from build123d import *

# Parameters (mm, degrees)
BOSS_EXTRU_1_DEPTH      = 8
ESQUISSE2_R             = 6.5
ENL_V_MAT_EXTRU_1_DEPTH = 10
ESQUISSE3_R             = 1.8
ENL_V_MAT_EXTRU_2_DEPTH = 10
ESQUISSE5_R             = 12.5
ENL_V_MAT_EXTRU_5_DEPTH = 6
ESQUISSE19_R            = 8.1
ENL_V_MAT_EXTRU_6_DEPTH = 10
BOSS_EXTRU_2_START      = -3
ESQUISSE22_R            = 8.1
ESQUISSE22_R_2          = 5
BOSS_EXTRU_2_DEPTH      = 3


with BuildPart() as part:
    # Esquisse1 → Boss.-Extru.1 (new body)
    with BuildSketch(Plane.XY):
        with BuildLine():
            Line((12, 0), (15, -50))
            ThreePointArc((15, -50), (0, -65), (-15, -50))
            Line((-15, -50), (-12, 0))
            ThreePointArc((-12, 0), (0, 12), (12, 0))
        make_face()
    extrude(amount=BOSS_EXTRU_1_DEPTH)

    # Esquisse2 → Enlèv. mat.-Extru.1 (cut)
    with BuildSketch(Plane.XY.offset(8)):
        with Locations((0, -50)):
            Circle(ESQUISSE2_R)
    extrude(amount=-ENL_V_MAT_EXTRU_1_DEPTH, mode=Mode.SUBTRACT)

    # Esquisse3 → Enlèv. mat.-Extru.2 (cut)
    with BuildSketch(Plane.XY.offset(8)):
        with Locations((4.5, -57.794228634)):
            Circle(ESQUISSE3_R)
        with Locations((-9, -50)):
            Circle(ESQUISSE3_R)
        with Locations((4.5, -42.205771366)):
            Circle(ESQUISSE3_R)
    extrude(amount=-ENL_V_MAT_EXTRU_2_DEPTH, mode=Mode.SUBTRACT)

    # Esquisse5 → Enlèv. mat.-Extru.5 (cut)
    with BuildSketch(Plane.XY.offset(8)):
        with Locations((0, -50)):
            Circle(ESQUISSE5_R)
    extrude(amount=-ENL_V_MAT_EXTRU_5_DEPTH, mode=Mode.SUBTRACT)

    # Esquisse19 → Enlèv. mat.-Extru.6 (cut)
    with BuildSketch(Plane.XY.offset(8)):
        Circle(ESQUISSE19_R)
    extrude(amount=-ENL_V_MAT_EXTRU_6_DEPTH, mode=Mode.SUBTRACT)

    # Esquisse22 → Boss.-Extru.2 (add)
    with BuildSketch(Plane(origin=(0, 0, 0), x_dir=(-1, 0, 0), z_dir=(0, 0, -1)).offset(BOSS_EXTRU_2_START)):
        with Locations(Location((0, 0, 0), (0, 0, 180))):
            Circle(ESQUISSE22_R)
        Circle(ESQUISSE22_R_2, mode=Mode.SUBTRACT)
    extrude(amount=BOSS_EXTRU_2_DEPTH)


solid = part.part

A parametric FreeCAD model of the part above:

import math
import FreeCAD as App
import Part
import Sketcher

doc = App.newDocument("Part")
params = doc.addObject("Spreadsheet::Sheet", "Params")
for row, (alias, value) in enumerate([
    ("sketch1_radius", "12 mm"),
    ("sketch1_radius2", "15 mm"),
    ("pad1_length", "8 mm"),
    ("sketch2_diameter", "13 mm"),
    ("pocket1_length", "10 mm"),
    ("sketch3_diameter", "3.6 mm"),
    ("pocket2_length", "10 mm"),
    ("sketch4_diameter", "25 mm"),
    ("pocket3_length", "6 mm"),
    ("sketch5_diameter", "16.2 mm"),
    ("pocket4_length", "10 mm"),
    ("sketch6_diameter", "10 mm"),
    ("sketch6_diameter2", "16.2 mm"),
    ("pad2_length", "3 mm"),
], start=1):
    params.set(f"A{row}", alias)
    params.set(f"B{row}", "=" + value)
    params.setAlias(f"B{row}", alias)

body = doc.addObject("PartDesign::Body", "Body")

sketch1 = doc.addObject("Sketcher::SketchObject", "Sketch")
body.addObject(sketch1)
sketch1.AttachmentSupport = (doc.XY_Plane, [""])
sketch1.MapMode = "FlatFace"
sketch1.addGeometry([
    Part.LineSegment(App.Vector(15, -50, 0), App.Vector(12, 0, 0)),
    Part.ArcOfCircle(Part.Circle(App.Vector(0, 0, 0), App.Vector(0, 0, 1), 12), math.radians(0), math.radians(180)),
    Part.LineSegment(App.Vector(-12, 0, 0), App.Vector(-15, -50, 0)),
    Part.ArcOfCircle(Part.Circle(App.Vector(0, -50, 0), App.Vector(0, 0, 1), 15), math.radians(180), math.radians(360)),
], False)
sketch1.addConstraint([
    Sketcher.Constraint("Coincident", 0, 2, 1, 1),
    Sketcher.Constraint("Coincident", 1, 2, 2, 1),
    Sketcher.Constraint("Coincident", 2, 2, 3, 1),
    Sketcher.Constraint("Coincident", 3, 2, 0, 1),
    Sketcher.Constraint("Coincident", 1, 3, -1, 1),
    Sketcher.Constraint("Symmetric", 2, 2, 3, 2, -2),
    Sketcher.Constraint("PointOnObject", 0, 2, -1),
    Sketcher.Constraint("PointOnObject", 1, 2, -1),
    Sketcher.Constraint("Horizontal", 3, 3, 2, 2),
    Sketcher.Constraint("Radius", 1, 12.0),
    Sketcher.Constraint("Radius", 3, 15.0),
    Sketcher.Constraint("DistanceY", 3, 3, -1, 1, 50.0),
])
sketch1.setExpression("Constraints[9]", "Params.sketch1_radius")
sketch1.setExpression("Constraints[10]", "Params.sketch1_radius2")
pad1 = doc.addObject("PartDesign::Pad", "Pad")
body.addObject(pad1)
pad1.Profile = sketch1
pad1.setExpression("Length", "Params.pad1_length")

sketch2 = doc.addObject("Sketcher::SketchObject", "Sketch001")
body.addObject(sketch2)
sketch2.AttachmentSupport = (doc.XY_Plane, [""])
sketch2.MapMode = "FlatFace"
sketch2.AttachmentOffset = App.Placement(App.Vector(0, 0, 8), App.Rotation())
sketch2.addGeometry(Part.Circle(App.Vector(0, -50, 0), App.Vector(0, 0, 1), 6.5), False)
sketch2.addConstraint([
    Sketcher.Constraint("PointOnObject", 0, 3, -2),
    Sketcher.Constraint("Diameter", 0, 13.0),
    Sketcher.Constraint("DistanceY", 0, 3, -1, 1, 50.0),
])
sketch2.setExpression("Constraints[1]", "Params.sketch2_diameter")
pocket1 = doc.addObject("PartDesign::Pocket", "Pocket")
body.addObject(pocket1)
pocket1.Profile = sketch2
pocket1.setExpression("Length", "Params.pocket1_length")

sketch3 = doc.addObject("Sketcher::SketchObject", "Sketch002")
body.addObject(sketch3)
sketch3.AttachmentSupport = (doc.XY_Plane, [""])
sketch3.MapMode = "FlatFace"
sketch3.AttachmentOffset = App.Placement(App.Vector(0, 0, 8), App.Rotation())
sketch3.addGeometry([
    Part.Circle(App.Vector(4.5, -57.794229, 0), App.Vector(0, 0, 1), 1.8),
    Part.Circle(App.Vector(-9, -50, 0), App.Vector(0, 0, 1), 1.8),
    Part.Circle(App.Vector(4.5, -42.205771, 0), App.Vector(0, 0, 1), 1.8),
], False)
sketch3.addConstraint([
    Sketcher.Constraint("Equal", 0, 1),
    Sketcher.Constraint("Equal", 1, 2),
    Sketcher.Constraint("Vertical", 0, 3, 2, 3),
    Sketcher.Constraint("Diameter", 0, 3.6),
    Sketcher.Constraint("DistanceX", 1, 3, -1, 1, 9.0),
    Sketcher.Constraint("DistanceY", 1, 3, -1, 1, 50.0),
    Sketcher.Constraint("DistanceX", -1, 1, 0, 3, 4.5),
    Sketcher.Constraint("DistanceY", 0, 3, -1, 1, 57.794229),
    Sketcher.Constraint("DistanceY", 2, 3, -1, 1, 42.205771),
])
sketch3.setExpression("Constraints[3]", "Params.sketch3_diameter")
pocket2 = doc.addObject("PartDesign::Pocket", "Pocket001")
body.addObject(pocket2)
pocket2.Profile = sketch3
pocket2.setExpression("Length", "Params.pocket2_length")

sketch4 = doc.addObject("Sketcher::SketchObject", "Sketch003")
body.addObject(sketch4)
sketch4.AttachmentSupport = (doc.XY_Plane, [""])
sketch4.MapMode = "FlatFace"
sketch4.AttachmentOffset = App.Placement(App.Vector(0, 0, 8), App.Rotation())
sketch4.addGeometry(Part.Circle(App.Vector(0, -50, 0), App.Vector(0, 0, 1), 12.5), False)
sketch4.addConstraint([
    Sketcher.Constraint("PointOnObject", 0, 3, -2),
    Sketcher.Constraint("Diameter", 0, 25.0),
    Sketcher.Constraint("DistanceY", 0, 3, -1, 1, 50.0),
])
sketch4.setExpression("Constraints[1]", "Params.sketch4_diameter")
pocket3 = doc.addObject("PartDesign::Pocket", "Pocket002")
body.addObject(pocket3)
pocket3.Profile = sketch4
pocket3.setExpression("Length", "Params.pocket3_length")

sketch5 = doc.addObject("Sketcher::SketchObject", "Sketch004")
body.addObject(sketch5)
sketch5.AttachmentSupport = (doc.XY_Plane, [""])
sketch5.MapMode = "FlatFace"
sketch5.AttachmentOffset = App.Placement(App.Vector(0, 0, 8), App.Rotation())
sketch5.addGeometry(Part.Circle(App.Vector(0, 0, 0), App.Vector(0, 0, 1), 8.1), False)
sketch5.addConstraint([
    Sketcher.Constraint("Coincident", 0, 3, -1, 1),
    Sketcher.Constraint("Diameter", 0, 16.2),
])
sketch5.setExpression("Constraints[1]", "Params.sketch5_diameter")
pocket4 = doc.addObject("PartDesign::Pocket", "Pocket003")
body.addObject(pocket4)
pocket4.Profile = sketch5
pocket4.setExpression("Length", "Params.pocket4_length")

sketch6 = doc.addObject("Sketcher::SketchObject", "Sketch005")
body.addObject(sketch6)
sketch6.AttachmentSupport = (doc.XY_Plane, [""])
sketch6.MapMode = "FlatFace"
sketch6.AttachmentOffset = App.Placement(App.Vector(0, 0, 3), App.Rotation())
sketch6.addGeometry([
    Part.Circle(App.Vector(0, 0, 0), App.Vector(0, 0, 1), 8.1),
    Part.Circle(App.Vector(0, 0, 0), App.Vector(0, 0, 1), 5),
], False)
sketch6.addConstraint([
    Sketcher.Constraint("Coincident", 0, 3, -1, 1),
    Sketcher.Constraint("Coincident", 1, 3, -1, 1),
    Sketcher.Constraint("Diameter", 1, 10.0),
    Sketcher.Constraint("Diameter", 0, 16.2),
])
sketch6.setExpression("Constraints[2]", "Params.sketch6_diameter")
sketch6.setExpression("Constraints[3]", "Params.sketch6_diameter2")
pad2 = doc.addObject("PartDesign::Pad", "Pad001")
body.addObject(pad2)
pad2.Profile = sketch6
pad2.setExpression("Length", "Params.pad2_length")
pad2.Reversed = True

doc.recompute()
